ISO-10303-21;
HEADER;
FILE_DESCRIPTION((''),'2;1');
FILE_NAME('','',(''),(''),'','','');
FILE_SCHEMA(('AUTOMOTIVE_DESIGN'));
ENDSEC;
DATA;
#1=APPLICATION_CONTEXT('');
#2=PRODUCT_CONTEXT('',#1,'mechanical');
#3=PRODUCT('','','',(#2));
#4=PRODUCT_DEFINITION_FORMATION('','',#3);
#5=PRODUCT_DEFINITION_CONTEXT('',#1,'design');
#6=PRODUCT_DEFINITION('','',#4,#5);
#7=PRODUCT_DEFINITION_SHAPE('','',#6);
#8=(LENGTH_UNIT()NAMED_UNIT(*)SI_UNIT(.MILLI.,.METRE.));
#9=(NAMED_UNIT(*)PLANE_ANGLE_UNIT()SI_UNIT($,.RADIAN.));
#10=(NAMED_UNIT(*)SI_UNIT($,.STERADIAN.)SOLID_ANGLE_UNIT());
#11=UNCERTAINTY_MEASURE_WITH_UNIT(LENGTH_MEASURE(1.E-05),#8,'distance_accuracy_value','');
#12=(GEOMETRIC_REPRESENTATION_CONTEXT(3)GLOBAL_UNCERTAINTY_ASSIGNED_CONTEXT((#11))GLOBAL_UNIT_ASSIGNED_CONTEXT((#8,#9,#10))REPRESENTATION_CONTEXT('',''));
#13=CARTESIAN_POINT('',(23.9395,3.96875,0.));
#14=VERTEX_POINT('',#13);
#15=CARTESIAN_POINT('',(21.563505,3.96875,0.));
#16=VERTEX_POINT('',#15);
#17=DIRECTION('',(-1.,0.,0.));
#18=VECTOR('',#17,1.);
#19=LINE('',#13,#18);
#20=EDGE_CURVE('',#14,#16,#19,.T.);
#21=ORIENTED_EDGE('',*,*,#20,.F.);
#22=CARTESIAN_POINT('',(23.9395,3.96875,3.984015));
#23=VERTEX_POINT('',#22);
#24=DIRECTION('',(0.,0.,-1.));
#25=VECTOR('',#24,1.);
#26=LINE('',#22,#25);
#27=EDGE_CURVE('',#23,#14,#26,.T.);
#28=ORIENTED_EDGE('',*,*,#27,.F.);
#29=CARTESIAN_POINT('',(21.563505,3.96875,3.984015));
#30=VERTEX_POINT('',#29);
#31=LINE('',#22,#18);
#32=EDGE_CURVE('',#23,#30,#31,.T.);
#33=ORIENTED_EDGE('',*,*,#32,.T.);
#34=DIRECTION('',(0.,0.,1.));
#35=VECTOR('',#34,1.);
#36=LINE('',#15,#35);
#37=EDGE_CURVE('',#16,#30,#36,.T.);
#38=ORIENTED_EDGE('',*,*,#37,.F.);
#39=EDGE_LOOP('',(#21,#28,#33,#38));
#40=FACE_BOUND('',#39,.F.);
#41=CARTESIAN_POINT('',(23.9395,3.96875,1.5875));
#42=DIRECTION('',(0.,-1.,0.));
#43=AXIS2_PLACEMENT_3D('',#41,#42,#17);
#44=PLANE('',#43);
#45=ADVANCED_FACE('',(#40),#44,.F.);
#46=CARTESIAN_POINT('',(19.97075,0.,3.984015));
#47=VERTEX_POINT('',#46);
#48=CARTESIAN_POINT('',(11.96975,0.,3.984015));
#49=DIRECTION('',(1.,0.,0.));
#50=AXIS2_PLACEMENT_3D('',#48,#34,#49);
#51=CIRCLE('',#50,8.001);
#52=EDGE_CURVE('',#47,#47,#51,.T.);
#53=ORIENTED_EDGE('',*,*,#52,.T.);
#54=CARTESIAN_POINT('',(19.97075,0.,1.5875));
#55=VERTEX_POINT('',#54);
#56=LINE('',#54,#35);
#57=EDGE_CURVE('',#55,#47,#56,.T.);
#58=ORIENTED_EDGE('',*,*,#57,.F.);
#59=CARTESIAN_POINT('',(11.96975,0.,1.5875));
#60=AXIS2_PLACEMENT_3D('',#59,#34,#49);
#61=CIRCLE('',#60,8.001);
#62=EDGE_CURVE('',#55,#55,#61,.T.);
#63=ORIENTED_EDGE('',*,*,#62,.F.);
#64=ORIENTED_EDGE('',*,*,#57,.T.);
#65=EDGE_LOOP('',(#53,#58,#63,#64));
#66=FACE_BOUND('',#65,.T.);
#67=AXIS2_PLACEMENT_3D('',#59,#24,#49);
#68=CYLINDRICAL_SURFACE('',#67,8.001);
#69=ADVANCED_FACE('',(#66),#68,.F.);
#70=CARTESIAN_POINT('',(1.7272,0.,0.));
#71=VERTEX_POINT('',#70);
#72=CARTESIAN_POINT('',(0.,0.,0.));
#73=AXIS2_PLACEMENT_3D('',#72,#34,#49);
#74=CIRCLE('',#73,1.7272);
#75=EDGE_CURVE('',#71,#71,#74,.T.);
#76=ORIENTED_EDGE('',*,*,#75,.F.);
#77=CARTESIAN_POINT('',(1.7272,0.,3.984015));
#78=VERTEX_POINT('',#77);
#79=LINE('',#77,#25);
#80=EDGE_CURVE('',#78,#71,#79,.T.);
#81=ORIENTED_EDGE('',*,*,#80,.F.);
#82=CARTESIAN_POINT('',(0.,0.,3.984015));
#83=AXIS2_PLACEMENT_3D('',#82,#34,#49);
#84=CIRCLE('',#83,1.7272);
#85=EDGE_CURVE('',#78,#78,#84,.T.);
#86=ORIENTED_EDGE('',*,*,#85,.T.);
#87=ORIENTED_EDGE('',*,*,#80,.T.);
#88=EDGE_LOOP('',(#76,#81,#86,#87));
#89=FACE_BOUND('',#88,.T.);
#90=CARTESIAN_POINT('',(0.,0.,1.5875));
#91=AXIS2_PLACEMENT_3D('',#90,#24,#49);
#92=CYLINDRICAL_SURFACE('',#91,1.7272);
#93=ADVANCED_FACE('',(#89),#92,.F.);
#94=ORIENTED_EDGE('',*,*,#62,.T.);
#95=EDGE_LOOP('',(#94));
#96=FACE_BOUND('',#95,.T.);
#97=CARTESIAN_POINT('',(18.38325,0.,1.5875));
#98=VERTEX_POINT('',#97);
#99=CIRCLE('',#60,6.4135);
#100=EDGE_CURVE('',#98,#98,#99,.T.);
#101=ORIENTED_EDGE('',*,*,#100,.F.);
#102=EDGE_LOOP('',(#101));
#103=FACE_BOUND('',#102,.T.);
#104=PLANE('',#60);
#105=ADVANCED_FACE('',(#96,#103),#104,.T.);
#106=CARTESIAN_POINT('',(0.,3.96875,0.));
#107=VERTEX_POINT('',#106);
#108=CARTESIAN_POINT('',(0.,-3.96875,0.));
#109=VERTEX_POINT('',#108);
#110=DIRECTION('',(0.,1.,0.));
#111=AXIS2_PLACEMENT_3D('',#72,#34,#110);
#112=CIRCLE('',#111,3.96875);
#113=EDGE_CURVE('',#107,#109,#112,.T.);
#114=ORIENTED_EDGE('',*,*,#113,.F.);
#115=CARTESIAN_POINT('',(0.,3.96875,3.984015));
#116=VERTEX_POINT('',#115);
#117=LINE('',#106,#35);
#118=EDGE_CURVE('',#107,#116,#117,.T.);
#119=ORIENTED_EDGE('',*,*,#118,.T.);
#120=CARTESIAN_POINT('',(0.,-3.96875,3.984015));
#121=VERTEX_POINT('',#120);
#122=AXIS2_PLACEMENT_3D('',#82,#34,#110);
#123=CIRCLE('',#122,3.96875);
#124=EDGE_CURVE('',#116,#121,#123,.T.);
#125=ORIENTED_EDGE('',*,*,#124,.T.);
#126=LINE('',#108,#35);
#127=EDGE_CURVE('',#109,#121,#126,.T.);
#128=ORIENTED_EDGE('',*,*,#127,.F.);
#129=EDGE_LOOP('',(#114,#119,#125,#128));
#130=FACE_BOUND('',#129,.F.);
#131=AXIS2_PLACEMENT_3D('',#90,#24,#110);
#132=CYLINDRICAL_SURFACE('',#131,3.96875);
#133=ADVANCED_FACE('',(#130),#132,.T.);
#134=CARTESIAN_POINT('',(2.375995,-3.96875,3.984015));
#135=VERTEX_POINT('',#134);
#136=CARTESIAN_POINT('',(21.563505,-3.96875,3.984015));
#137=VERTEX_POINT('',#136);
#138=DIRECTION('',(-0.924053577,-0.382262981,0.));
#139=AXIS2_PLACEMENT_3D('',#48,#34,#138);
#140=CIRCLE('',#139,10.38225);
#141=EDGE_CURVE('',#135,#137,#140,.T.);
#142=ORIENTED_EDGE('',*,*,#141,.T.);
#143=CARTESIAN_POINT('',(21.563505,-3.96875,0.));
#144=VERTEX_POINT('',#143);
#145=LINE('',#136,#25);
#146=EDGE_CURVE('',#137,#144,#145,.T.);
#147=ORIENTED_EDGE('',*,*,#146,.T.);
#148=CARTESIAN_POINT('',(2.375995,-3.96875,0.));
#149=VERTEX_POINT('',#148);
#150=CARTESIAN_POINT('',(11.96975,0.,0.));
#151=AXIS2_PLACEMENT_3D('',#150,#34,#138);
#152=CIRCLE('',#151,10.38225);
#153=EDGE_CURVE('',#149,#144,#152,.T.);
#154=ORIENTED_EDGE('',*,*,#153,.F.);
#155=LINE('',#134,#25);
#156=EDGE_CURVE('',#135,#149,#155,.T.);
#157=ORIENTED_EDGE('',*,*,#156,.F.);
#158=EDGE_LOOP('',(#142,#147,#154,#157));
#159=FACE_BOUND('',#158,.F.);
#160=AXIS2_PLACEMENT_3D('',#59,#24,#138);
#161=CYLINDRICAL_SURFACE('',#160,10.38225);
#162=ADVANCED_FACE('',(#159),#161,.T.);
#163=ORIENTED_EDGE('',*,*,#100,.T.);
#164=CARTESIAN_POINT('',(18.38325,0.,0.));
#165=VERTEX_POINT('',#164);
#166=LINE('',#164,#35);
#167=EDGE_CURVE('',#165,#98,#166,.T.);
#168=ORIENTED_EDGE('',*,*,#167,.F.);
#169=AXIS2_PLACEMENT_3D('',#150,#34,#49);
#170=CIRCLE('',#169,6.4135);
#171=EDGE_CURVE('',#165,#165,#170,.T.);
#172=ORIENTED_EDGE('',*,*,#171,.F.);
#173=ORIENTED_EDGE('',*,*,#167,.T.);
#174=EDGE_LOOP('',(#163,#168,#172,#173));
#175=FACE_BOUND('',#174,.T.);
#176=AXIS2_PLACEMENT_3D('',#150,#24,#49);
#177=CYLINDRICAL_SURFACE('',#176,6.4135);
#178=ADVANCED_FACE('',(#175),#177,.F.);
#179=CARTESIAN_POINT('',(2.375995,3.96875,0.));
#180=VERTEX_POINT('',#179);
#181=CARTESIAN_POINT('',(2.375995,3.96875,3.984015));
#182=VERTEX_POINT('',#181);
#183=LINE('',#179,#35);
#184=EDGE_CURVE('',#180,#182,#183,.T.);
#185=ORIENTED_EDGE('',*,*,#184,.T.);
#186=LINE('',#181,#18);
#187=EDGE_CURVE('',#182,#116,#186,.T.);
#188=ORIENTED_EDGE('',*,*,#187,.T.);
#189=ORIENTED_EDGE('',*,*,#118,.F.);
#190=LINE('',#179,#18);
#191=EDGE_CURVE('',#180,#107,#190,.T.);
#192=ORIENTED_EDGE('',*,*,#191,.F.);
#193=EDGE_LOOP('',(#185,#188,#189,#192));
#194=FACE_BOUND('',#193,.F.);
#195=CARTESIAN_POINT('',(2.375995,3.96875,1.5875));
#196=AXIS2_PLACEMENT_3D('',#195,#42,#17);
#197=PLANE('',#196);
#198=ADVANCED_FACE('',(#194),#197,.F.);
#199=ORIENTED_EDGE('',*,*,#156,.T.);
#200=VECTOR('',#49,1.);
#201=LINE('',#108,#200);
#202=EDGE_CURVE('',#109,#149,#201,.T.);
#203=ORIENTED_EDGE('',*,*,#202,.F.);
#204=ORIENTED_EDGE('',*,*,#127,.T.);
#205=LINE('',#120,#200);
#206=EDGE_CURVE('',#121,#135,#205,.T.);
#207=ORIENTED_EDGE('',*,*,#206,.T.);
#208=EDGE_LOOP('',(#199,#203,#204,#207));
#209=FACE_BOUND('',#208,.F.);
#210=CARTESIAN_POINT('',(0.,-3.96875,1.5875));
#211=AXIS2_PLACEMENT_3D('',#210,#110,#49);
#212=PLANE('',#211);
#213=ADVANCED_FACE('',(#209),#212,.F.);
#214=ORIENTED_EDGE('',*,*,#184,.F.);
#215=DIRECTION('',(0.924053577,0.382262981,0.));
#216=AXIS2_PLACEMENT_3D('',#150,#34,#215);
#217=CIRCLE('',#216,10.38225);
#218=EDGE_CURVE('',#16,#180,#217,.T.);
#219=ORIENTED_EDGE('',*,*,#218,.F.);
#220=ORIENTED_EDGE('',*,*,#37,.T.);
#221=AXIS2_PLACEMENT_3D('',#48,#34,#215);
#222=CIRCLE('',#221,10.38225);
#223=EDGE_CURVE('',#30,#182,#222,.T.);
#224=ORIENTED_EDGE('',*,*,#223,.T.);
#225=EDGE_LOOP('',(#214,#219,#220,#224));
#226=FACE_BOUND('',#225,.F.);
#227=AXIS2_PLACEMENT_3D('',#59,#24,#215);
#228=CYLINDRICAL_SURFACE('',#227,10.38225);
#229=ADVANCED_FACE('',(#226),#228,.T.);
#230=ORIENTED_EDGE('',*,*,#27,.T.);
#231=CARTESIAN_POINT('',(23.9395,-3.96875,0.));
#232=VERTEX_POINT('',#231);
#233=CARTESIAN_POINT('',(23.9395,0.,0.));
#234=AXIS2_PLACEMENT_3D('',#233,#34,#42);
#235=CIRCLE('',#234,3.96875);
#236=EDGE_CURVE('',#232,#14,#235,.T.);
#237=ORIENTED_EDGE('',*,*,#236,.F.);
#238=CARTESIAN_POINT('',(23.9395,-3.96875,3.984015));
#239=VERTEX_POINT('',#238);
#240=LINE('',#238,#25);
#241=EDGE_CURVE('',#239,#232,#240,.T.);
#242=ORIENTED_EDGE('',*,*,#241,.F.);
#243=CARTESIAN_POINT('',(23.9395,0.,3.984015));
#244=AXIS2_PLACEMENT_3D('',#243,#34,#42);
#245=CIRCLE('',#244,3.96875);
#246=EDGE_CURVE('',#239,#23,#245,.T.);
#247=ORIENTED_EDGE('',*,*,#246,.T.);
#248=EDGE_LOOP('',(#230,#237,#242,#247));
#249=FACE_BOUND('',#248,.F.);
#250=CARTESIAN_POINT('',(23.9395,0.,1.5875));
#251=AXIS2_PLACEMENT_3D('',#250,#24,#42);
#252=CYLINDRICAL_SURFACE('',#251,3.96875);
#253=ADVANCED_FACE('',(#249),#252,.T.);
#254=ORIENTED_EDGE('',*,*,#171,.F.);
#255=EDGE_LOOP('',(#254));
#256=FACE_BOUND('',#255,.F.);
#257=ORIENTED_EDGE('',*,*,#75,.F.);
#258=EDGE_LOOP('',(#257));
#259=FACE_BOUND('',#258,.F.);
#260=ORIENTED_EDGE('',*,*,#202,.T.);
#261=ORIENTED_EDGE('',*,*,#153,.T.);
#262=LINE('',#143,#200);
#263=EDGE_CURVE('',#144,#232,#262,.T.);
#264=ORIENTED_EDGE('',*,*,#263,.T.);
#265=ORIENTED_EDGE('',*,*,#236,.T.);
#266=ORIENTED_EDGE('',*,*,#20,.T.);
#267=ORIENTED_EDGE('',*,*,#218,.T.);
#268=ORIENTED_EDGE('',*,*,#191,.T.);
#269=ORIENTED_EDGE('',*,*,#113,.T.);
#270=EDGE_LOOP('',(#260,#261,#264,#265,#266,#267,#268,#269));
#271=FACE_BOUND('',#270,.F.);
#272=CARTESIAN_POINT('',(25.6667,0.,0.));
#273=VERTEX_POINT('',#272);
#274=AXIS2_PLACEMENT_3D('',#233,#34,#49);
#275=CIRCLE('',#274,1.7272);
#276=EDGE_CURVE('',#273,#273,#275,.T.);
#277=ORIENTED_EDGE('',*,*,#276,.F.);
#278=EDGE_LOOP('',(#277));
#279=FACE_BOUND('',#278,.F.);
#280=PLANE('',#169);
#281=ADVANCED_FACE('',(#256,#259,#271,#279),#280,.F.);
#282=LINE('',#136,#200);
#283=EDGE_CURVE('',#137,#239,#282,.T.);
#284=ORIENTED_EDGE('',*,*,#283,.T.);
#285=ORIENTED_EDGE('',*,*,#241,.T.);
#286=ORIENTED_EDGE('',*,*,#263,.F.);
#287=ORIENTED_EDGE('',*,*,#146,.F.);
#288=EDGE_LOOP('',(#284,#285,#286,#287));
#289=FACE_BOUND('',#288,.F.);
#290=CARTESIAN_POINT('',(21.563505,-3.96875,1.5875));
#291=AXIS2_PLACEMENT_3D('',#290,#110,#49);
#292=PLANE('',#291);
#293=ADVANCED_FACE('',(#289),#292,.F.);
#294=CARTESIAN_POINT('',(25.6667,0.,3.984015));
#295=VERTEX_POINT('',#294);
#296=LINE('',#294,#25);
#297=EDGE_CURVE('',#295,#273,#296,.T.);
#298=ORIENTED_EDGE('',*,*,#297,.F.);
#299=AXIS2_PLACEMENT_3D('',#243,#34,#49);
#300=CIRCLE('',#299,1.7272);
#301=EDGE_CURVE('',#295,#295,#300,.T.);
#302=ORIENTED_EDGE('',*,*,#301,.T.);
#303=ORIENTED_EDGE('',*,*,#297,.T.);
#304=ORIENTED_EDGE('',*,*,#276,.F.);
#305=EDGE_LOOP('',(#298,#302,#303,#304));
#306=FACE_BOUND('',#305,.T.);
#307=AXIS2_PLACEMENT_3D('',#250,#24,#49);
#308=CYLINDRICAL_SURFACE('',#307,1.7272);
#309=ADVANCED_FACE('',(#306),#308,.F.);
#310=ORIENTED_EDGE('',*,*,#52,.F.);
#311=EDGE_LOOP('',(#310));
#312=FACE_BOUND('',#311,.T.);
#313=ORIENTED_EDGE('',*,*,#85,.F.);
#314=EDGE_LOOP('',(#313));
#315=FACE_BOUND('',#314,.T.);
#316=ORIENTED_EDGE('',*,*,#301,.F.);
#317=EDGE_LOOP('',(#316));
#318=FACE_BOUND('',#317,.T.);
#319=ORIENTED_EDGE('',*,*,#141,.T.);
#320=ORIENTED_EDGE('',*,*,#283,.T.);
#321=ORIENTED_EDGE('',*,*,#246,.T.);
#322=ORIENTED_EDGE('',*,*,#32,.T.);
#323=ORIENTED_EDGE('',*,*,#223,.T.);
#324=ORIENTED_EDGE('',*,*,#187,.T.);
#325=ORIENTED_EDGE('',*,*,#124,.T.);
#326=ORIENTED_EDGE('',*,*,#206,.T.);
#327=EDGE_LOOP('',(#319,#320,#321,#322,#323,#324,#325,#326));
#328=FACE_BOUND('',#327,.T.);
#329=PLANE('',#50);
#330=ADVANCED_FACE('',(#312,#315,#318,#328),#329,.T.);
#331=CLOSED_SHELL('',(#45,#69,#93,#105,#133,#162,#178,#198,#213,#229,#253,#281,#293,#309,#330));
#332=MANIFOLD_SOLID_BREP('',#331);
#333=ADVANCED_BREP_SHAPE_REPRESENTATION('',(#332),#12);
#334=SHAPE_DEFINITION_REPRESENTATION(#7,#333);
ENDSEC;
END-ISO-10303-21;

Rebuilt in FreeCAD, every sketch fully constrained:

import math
import FreeCAD as App
import Part
import Sketcher
Q = App.Units.Quantity

doc = App.newDocument("Part")
params = doc.addObject("Spreadsheet::Sheet", "Params")
for row, (alias, value) in enumerate([
    ("sketch1_diameter", "0.136 in"),
    ("sketch1_diameter2", "0.505 in"),
    ("sketch1_radius", "0.15625 in"),
    ("pad1_length", "0.0625 in"),
    ("sketch2_diameter", "0.63 in"),
    ("sketch2_diameter2", "0.136 in"),
    ("sketch2_radius", "0.15625 in"),
    ("pad2_length", "2.396515 mm"),
], start=1):
    params.set(f"A{row}", alias)
    params.set(f"B{row}", "=" + value)
    params.setAlias(f"B{row}", alias)

body = doc.addObject("PartDesign::Body", "Body")

# Sketch on XY plane
sketch1 = doc.addObject("Sketcher::SketchObject", "Sketch")
body.addObject(sketch1)
sketch1.AttachmentSupport = (doc.XY_Plane, [""])
sketch1.MapMode = "FlatFace"
sketch1.addGeometry([
    Part.LineSegment(App.Vector(2.4, 4, 0), App.Vector(0, 4, 0)),  # 0
    Part.ArcOfCircle(Part.Circle(App.Vector(0, 0, 0), App.Vector(0, 0, 1), 4), math.radians(90), math.radians(270)),  # 1
    Part.LineSegment(App.Vector(0, -4, 0), App.Vector(2.4, -4, 0)),  # 2
    Part.ArcOfCircle(Part.Circle(App.Vector(12, 0, 0), App.Vector(0, 0, 1), 10.4), math.radians(-158), math.radians(-22)),  # 3
    Part.LineSegment(App.Vector(21.6, -4, 0), App.Vector(23.9, -4, 0)),  # 4
    Part.ArcOfCircle(Part.Circle(App.Vector(23.9, 0, 0), App.Vector(0, 0, 1), 4), math.radians(-90), math.radians(90)),  # 5
    Part.LineSegment(App.Vector(23.9, 4, 0), App.Vector(21.6, 4, 0)),  # 6
    Part.ArcOfCircle(Part.Circle(App.Vector(12, 0, 0), App.Vector(0, 0, 1), 10.4), math.radians(22), math.radians(158)),  # 7
    Part.Circle(App.Vector(0, 0, 0), App.Vector(0, 0, 1), 1.7),  # 8
    Part.Circle(App.Vector(12, 0, 0), App.Vector(0, 0, 1), 6.4),  # 9
    Part.Circle(App.Vector(23.9, 0, 0), App.Vector(0, 0, 1), 1.7),  # 10
], False)
sketch1.addConstraint([
    Sketcher.Constraint("Tangent", 0, 2, 1, 1),
    Sketcher.Constraint("Tangent", 1, 2, 2, 1),
    Sketcher.Constraint("Coincident", 2, 2, 3, 1),
    Sketcher.Constraint("Coincident", 3, 2, 4, 1),
    Sketcher.Constraint("Tangent", 4, 2, 5, 1),
    Sketcher.Constraint("Tangent", 5, 2, 6, 1),
    Sketcher.Constraint("Coincident", 6, 2, 7, 1),
    Sketcher.Constraint("Coincident", 7, 2, 0, 1),
    Sketcher.Constraint("Horizontal", 0),
    Sketcher.Constraint("Horizontal", 2),
    Sketcher.Constraint("Horizontal", 4),
    Sketcher.Constraint("Horizontal", 6),
    Sketcher.Constraint("Coincident", 1, 3, -1, 1),
    Sketcher.Constraint("Coincident", 8, 3, -1, 1),
    Sketcher.Constraint("Coincident", 7, 3, 3, 3),
    Sketcher.Constraint("Coincident", 9, 3, 3, 3),
    Sketcher.Constraint("Coincident", 10, 3, 5, 3),
    Sketcher.Constraint("Equal", 1, 5),
    Sketcher.Constraint("Equal", 3, 7),
    Sketcher.Constraint("Equal", 8, 10),
    Sketcher.Constraint("Symmetric", 3, 2, 6, 2, -1),
    Sketcher.Constraint("Equal", 2, 4),
    Sketcher.Constraint("Diameter", 8, Q("0.136 in")),
    Sketcher.Constraint("Diameter", 9, Q("0.505 in")),
    Sketcher.Constraint("Radius", 1, Q("0.15625 in")),
    Sketcher.Constraint("Radius", 3, 10.38225),
    Sketcher.Constraint("DistanceX", -1, 1, 5, 3, Q("0.9425 in")),
])
sketch1.setExpression("Constraints[22]", "Params.sketch1_diameter")
sketch1.setExpression("Constraints[23]", "Params.sketch1_diameter2")
sketch1.setExpression("Constraints[24]", "Params.sketch1_radius")
pad1 = doc.addObject("PartDesign::Pad", "Pad")
body.addObject(pad1)
pad1.Profile = sketch1
pad1.setExpression("Length", "Params.pad1_length")

# Sketch on XY plane
sketch2 = doc.addObject("Sketcher::SketchObject", "Sketch001")
body.addObject(sketch2)
sketch2.AttachmentSupport = (doc.XY_Plane, [""])
sketch2.MapMode = "FlatFace"
sketch2.AttachmentOffset = App.Placement(App.Vector(0, 0, 0.0625 * 25.4), App.Rotation())
sketch2.addGeometry([
    Part.LineSegment(App.Vector(23.9, 4, 0), App.Vector(21.6, 4, 0)),  # 0
    Part.ArcOfCircle(Part.Circle(App.Vector(12, 0, 0), App.Vector(0, 0, 1), 10.4), math.radians(22), math.radians(158)),  # 1
    Part.LineSegment(App.Vector(2.4, 4, 0), App.Vector(0, 4, 0)),  # 2
    Part.ArcOfCircle(Part.Circle(App.Vector(0, 0, 0), App.Vector(0, 0, 1), 4), math.radians(90), math.radians(270)),  # 3
    Part.LineSegment(App.Vector(0, -4, 0), App.Vector(2.4, -4, 0)),  # 4
    Part.ArcOfCircle(Part.Circle(App.Vector(12, 0, 0), App.Vector(0, 0, 1), 10.4), math.radians(-158), math.radians(-22)),  # 5
    Part.LineSegment(App.Vector(21.6, -4, 0), App.Vector(23.9, -4, 0)),  # 6
    Part.ArcOfCircle(Part.Circle(App.Vector(23.9, 0, 0), App.Vector(0, 0, 1), 4), math.radians(-90), math.radians(90)),  # 7
    Part.Circle(App.Vector(0, 0, 0), App.Vector(0, 0, 1), 1.7),  # 8
    Part.Circle(App.Vector(12, 0, 0), App.Vector(0, 0, 1), 8),  # 9
    Part.Circle(App.Vector(23.9, 0, 0), App.Vector(0, 0, 1), 1.7),  # 10
], False)
sketch2.addConstraint([
    Sketcher.Constraint("Coincident", 0, 2, 1, 1),
    Sketcher.Constraint("Coincident", 1, 2, 2, 1),
    Sketcher.Constraint("Tangent", 2, 2, 3, 1),
    Sketcher.Constraint("Tangent", 3, 2, 4, 1),
    Sketcher.Constraint("Coincident", 4, 2, 5, 1),
    Sketcher.Constraint("Coincident", 5, 2, 6, 1),
    Sketcher.Constraint("Tangent", 6, 2, 7, 1),
    Sketcher.Constraint("Tangent", 7, 2, 0, 1),
    Sketcher.Constraint("Horizontal", 0),
    Sketcher.Constraint("Horizontal", 2),
    Sketcher.Constraint("Horizontal", 4),
    Sketcher.Constraint("Horizontal", 6),
    Sketcher.Constraint("Coincident", 3, 3, -1, 1),
    Sketcher.Constraint("Coincident", 8, 3, -1, 1),
    Sketcher.Constraint("Coincident", 5, 3, 1, 3),
    Sketcher.Constraint("Coincident", 9, 3, 1, 3),
    Sketcher.Constraint("Coincident", 10, 3, 7, 3),
    Sketcher.Constraint("Equal", 1, 5),
    Sketcher.Constraint("Equal", 3, 7),
    Sketcher.Constraint("Equal", 8, 10),
    Sketcher.Constraint("Symmetric", 0, 2, 5, 2, -1),
    Sketcher.Constraint("Equal", 0, 2),
    Sketcher.Constraint("Diameter", 9, Q("0.63 in")),
    Sketcher.Constraint("Diameter", 8, Q("0.136 in")),
    Sketcher.Constraint("Radius", 3, Q("0.15625 in")),
    Sketcher.Constraint("Radius", 1, 10.38225),
    Sketcher.Constraint("DistanceX", -1, 1, 7, 3, Q("0.9425 in")),
])
sketch2.setExpression("Constraints[22]", "Params.sketch2_diameter")
sketch2.setExpression("Constraints[23]", "Params.sketch2_diameter2")
sketch2.setExpression("Constraints[24]", "Params.sketch2_radius")
pad2 = doc.addObject("PartDesign::Pad", "Pad001")
body.addObject(pad2)
pad2.Profile = sketch2
pad2.setExpression("Length", "Params.pad2_length")

doc.recompute()
